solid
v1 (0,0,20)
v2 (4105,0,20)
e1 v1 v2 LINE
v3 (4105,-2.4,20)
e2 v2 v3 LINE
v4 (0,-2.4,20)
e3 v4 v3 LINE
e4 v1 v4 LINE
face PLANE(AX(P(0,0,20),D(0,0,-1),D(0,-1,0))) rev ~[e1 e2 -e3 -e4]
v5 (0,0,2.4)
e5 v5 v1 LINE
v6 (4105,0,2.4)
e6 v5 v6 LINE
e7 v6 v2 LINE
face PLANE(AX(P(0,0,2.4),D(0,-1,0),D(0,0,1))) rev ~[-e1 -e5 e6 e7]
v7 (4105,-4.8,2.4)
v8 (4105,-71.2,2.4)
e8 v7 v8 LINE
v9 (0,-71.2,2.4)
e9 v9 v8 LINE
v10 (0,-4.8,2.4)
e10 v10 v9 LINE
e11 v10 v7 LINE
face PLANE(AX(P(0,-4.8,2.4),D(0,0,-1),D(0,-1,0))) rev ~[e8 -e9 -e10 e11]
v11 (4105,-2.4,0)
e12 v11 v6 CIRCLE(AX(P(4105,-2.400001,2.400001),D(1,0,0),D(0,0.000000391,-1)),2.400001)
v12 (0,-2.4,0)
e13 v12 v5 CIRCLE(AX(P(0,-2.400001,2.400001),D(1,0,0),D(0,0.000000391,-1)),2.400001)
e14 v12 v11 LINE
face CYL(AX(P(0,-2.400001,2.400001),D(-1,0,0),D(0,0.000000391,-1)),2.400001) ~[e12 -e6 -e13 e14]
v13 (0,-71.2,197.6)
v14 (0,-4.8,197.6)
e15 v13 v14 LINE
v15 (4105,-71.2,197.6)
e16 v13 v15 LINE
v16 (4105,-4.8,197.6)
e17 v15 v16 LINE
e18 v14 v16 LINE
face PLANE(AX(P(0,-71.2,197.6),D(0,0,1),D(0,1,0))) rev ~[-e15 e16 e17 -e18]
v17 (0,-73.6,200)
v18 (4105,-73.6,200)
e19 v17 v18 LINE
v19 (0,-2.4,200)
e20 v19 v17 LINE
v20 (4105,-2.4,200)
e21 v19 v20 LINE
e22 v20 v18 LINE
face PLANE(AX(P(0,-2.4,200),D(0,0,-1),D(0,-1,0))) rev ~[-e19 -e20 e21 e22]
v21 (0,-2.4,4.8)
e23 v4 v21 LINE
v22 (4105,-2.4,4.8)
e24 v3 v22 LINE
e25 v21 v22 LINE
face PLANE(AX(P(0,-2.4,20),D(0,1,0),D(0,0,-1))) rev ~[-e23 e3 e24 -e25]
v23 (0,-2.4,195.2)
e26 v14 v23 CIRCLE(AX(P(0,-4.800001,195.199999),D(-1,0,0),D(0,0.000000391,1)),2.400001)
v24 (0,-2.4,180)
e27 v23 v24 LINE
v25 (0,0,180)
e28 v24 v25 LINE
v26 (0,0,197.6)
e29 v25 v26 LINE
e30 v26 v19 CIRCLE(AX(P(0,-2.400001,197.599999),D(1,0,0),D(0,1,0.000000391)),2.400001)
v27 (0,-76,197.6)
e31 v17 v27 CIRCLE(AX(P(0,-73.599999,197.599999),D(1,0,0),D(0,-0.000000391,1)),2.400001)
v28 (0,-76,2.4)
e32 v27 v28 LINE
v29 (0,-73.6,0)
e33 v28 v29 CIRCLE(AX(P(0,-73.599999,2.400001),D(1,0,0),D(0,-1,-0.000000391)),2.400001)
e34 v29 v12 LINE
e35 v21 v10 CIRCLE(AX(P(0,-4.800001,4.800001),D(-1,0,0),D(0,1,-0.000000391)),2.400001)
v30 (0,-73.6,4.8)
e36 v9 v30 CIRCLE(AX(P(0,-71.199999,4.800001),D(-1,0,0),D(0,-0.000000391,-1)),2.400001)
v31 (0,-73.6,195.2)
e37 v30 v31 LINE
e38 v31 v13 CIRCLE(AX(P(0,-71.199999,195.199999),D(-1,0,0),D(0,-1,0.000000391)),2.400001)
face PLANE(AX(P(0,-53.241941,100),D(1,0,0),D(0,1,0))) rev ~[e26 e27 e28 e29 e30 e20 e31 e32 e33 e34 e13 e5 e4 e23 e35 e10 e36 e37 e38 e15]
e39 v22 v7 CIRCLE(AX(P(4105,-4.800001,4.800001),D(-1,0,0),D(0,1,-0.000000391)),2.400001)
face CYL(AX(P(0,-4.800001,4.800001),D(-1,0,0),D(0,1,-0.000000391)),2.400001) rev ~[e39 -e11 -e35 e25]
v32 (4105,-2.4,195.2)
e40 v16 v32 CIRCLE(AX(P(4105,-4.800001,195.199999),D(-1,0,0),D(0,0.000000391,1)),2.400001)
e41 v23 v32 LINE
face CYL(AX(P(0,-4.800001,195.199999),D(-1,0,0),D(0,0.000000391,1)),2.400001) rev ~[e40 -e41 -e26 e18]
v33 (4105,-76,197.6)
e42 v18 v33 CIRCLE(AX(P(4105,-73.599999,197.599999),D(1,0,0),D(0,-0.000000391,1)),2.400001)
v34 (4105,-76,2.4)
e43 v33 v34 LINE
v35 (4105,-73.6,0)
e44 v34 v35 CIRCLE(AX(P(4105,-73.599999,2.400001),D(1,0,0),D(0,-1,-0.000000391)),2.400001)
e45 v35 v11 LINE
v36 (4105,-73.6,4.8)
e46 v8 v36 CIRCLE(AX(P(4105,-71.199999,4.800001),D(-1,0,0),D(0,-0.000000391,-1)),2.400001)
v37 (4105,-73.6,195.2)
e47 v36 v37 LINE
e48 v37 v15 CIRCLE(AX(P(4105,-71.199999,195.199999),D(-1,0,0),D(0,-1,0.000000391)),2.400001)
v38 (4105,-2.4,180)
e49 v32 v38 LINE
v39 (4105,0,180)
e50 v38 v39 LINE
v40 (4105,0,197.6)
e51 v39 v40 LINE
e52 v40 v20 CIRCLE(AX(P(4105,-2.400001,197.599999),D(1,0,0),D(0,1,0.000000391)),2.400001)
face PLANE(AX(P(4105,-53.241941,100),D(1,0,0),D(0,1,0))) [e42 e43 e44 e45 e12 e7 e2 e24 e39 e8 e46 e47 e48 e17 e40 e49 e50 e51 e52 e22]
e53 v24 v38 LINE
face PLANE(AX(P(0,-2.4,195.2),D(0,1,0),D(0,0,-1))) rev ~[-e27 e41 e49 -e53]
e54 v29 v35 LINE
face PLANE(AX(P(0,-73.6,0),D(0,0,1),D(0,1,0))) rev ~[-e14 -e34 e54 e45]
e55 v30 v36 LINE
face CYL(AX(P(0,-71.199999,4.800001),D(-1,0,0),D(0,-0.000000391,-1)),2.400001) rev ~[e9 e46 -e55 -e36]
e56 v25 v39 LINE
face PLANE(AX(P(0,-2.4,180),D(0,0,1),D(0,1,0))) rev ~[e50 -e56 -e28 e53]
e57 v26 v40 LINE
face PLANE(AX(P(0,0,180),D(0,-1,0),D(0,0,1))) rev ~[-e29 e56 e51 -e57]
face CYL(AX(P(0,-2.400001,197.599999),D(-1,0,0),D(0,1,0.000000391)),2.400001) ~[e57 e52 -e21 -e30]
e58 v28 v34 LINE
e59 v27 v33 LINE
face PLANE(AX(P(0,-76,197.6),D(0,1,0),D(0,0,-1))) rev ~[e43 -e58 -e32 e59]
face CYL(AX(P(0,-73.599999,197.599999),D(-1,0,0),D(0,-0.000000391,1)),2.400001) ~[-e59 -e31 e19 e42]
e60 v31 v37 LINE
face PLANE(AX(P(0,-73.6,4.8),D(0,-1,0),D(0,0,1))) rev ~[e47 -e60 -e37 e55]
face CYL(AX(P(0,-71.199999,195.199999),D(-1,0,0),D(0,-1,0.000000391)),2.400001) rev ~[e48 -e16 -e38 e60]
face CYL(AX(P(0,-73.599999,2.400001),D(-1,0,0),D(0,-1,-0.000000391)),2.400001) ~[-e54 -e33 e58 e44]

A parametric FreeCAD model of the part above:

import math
import FreeCAD as App
import Part
import Sketcher
from FreeCAD import Vector

doc = App.newDocument("Part")
params = doc.addObject("Spreadsheet::Sheet", "Params")
for row, (alias, value) in enumerate([
    ("sketch1_radius", "2.400001 mm"),
    ("sketch1_width", "71.2 mm"),
    ("sketch1_height", "17.6 mm"),
    ("sketch1_height2", "190.4 mm"),
    ("pad1_length", "4105 mm"),
], start=1):
    params.set(f"A{row}", alias)
    params.set(f"B{row}", "=" + value)
    params.setAlias(f"B{row}", alias)

body = doc.addObject("PartDesign::Body", "Body")

# Sketch on YZ plane
sketch1 = doc.addObject("Sketcher::SketchObject", "Sketch")
body.addObject(sketch1)
sketch1.AttachmentSupport = (doc.YZ_Plane, [""])
sketch1.MapMode = "FlatFace"
sketch1.addGeometry([
    Part.LineSegment(Vector(-73.6, 0, 0), Vector(-2.4, 0, 0)),  # 0
    Part.ArcOfCircle(Part.Circle(Vector(-2.4, 2.4, 0), Vector(0, 0, 1), 2.4), math.radians(-90), math.radians(0)),  # 1
    Part.LineSegment(Vector(0, 2.4, 0), Vector(0, 20, 0)),  # 2
    Part.LineSegment(Vector(0, 20, 0), Vector(-2.4, 20, 0)),  # 3
    Part.LineSegment(Vector(-2.4, 20, 0), Vector(-2.4, 4.8, 0)),  # 4
    Part.ArcOfCircle(Part.Circle(Vector(-4.8, 4.8, 0), Vector(0, 0, 1), 2.4), math.radians(-90), math.radians(0)),  # 5
    Part.LineSegment(Vector(-4.8, 2.4, 0), Vector(-71.2, 2.4, 0)),  # 6
    Part.ArcOfCircle(Part.Circle(Vector(-71.2, 4.8, 0), Vector(0, 0, 1), 2.4), math.radians(-180), math.radians(-90)),  # 7
    Part.LineSegment(Vector(-73.6, 4.8, 0), Vector(-73.6, 195.2, 0)),  # 8
    Part.ArcOfCircle(Part.Circle(Vector(-71.2, 195.2, 0), Vector(0, 0, 1), 2.4), math.radians(90), math.radians(180)),  # 9
    Part.LineSegment(Vector(-71.2, 197.6, 0), Vector(-4.8, 197.6, 0)),  # 10
    Part.ArcOfCircle(Part.Circle(Vector(-4.8, 195.2, 0), Vector(0, 0, 1), 2.4), math.radians(0), math.radians(90)),  # 11
    Part.LineSegment(Vector(-2.4, 195.2, 0), Vector(-2.4, 180, 0)),  # 12
    Part.LineSegment(Vector(-2.4, 180, 0), Vector(0, 180, 0)),  # 13
    Part.LineSegment(Vector(0, 180, 0), Vector(0, 197.6, 0)),  # 14
    Part.ArcOfCircle(Part.Circle(Vector(-2.4, 197.6, 0), Vector(0, 0, 1), 2.4), math.radians(0), math.radians(90)),  # 15
    Part.LineSegment(Vector(-2.4, 200, 0), Vector(-73.6, 200, 0)),  # 16
    Part.ArcOfCircle(Part.Circle(Vector(-73.6, 197.6, 0), Vector(0, 0, 1), 2.4), math.radians(90), math.radians(180)),  # 17
    Part.LineSegment(Vector(-76, 197.6, 0), Vector(-76, 2.4, 0)),  # 18
    Part.ArcOfCircle(Part.Circle(Vector(-73.6, 2.4, 0), Vector(0, 0, 1), 2.4), math.radians(-180), math.radians(-90)),  # 19
], False)
sketch1.addConstraint([
    Sketcher.Constraint("Tangent", 0, 2, 1, 1),
    Sketcher.Constraint("Tangent", 1, 2, 2, 1),
    Sketcher.Constraint("Coincident", 2, 2, 3, 1),
    Sketcher.Constraint("Coincident", 3, 2, 4, 1),
    Sketcher.Constraint("Tangent", 4, 2, 5, 2),
    Sketcher.Constraint("Tangent", 5, 1, 6, 1),
    Sketcher.Constraint("Tangent", 6, 2, 7, 2),
    Sketcher.Constraint("Tangent", 7, 1, 8, 1),
    Sketcher.Constraint("Tangent", 8, 2, 9, 2),
    Sketcher.Constraint("Tangent", 9, 1, 10, 1),
    Sketcher.Constraint("Tangent", 10, 2, 11, 2),
    Sketcher.Constraint("Tangent", 11, 1, 12, 1),
    Sketcher.Constraint("Coincident", 12, 2, 13, 1),
    Sketcher.Constraint("Coincident", 13, 2, 14, 1),
    Sketcher.Constraint("Tangent", 14, 2, 15, 1),
    Sketcher.Constraint("Tangent", 15, 2, 16, 1),
    Sketcher.Constraint("Tangent", 16, 2, 17, 1),
    Sketcher.Constraint("Tangent", 17, 2, 18, 1),
    Sketcher.Constraint("Tangent", 18, 2, 19, 1),
    Sketcher.Constraint("Tangent", 19, 2, 0, 1),
    Sketcher.Constraint("Horizontal", 0),
    Sketcher.Constraint("Vertical", 2),
    Sketcher.Constraint("Horizontal", 3),
    Sketcher.Constraint("Vertical", 4),
    Sketcher.Constraint("Horizontal", 6),
    Sketcher.Constraint("Vertical", 8),
    Sketcher.Constraint("Horizontal", 10),
    Sketcher.Constraint("Vertical", 12),
    Sketcher.Constraint("Horizontal", 13),
    Sketcher.Constraint("Vertical", 14),
    Sketcher.Constraint("Horizontal", 16),
    Sketcher.Constraint("Vertical", 18),
    Sketcher.Constraint("Equal", 1, 5),
    Sketcher.Constraint("Equal", 5, 7),
    Sketcher.Constraint("Equal", 7, 9),
    Sketcher.Constraint("Equal", 9, 11),
    Sketcher.Constraint("Equal", 11, 15),
    Sketcher.Constraint("Equal", 15, 17),
    Sketcher.Constraint("Equal", 17, 19),
    Sketcher.Constraint("PointOnObject", 0, 2, -1),
    Sketcher.Constraint("PointOnObject", 1, 2, -2),
    Sketcher.Constraint("PointOnObject", 13, 2, -2),
    Sketcher.Constraint("Horizontal", 1, 2, 5, 1),
    Sketcher.Constraint("Horizontal", 17, 3, 9, 1),
    Sketcher.Constraint("Vertical", 5, 3, 11, 3),
    Sketcher.Constraint("Vertical", 0, 2, 3, 2),
    Sketcher.Constraint("Vertical", 19, 3, 7, 1),
    Sketcher.Constraint("Equal", 4, 12),
    Sketcher.Constraint("Radius", 1, 2.400001),
    Sketcher.Constraint("DistanceX", 0, 1, 0, 2, 71.2),
    Sketcher.Constraint("DistanceY", 2, 1, 2, 2, 17.6),
    Sketcher.Constraint("DistanceY", 8, 1, 8, 2, 190.4),
])
sketch1.setExpression("Constraints[48]", "Params.sketch1_radius")
sketch1.setExpression("Constraints[49]", "Params.sketch1_width")
sketch1.setExpression("Constraints[50]", "Params.sketch1_height")
sketch1.setExpression("Constraints[51]", "Params.sketch1_height2")
pad1 = doc.addObject("PartDesign::Pad", "Pad")
body.addObject(pad1)
pad1.Profile = sketch1
pad1.setExpression("Length", "Params.pad1_length")

doc.recompute()
